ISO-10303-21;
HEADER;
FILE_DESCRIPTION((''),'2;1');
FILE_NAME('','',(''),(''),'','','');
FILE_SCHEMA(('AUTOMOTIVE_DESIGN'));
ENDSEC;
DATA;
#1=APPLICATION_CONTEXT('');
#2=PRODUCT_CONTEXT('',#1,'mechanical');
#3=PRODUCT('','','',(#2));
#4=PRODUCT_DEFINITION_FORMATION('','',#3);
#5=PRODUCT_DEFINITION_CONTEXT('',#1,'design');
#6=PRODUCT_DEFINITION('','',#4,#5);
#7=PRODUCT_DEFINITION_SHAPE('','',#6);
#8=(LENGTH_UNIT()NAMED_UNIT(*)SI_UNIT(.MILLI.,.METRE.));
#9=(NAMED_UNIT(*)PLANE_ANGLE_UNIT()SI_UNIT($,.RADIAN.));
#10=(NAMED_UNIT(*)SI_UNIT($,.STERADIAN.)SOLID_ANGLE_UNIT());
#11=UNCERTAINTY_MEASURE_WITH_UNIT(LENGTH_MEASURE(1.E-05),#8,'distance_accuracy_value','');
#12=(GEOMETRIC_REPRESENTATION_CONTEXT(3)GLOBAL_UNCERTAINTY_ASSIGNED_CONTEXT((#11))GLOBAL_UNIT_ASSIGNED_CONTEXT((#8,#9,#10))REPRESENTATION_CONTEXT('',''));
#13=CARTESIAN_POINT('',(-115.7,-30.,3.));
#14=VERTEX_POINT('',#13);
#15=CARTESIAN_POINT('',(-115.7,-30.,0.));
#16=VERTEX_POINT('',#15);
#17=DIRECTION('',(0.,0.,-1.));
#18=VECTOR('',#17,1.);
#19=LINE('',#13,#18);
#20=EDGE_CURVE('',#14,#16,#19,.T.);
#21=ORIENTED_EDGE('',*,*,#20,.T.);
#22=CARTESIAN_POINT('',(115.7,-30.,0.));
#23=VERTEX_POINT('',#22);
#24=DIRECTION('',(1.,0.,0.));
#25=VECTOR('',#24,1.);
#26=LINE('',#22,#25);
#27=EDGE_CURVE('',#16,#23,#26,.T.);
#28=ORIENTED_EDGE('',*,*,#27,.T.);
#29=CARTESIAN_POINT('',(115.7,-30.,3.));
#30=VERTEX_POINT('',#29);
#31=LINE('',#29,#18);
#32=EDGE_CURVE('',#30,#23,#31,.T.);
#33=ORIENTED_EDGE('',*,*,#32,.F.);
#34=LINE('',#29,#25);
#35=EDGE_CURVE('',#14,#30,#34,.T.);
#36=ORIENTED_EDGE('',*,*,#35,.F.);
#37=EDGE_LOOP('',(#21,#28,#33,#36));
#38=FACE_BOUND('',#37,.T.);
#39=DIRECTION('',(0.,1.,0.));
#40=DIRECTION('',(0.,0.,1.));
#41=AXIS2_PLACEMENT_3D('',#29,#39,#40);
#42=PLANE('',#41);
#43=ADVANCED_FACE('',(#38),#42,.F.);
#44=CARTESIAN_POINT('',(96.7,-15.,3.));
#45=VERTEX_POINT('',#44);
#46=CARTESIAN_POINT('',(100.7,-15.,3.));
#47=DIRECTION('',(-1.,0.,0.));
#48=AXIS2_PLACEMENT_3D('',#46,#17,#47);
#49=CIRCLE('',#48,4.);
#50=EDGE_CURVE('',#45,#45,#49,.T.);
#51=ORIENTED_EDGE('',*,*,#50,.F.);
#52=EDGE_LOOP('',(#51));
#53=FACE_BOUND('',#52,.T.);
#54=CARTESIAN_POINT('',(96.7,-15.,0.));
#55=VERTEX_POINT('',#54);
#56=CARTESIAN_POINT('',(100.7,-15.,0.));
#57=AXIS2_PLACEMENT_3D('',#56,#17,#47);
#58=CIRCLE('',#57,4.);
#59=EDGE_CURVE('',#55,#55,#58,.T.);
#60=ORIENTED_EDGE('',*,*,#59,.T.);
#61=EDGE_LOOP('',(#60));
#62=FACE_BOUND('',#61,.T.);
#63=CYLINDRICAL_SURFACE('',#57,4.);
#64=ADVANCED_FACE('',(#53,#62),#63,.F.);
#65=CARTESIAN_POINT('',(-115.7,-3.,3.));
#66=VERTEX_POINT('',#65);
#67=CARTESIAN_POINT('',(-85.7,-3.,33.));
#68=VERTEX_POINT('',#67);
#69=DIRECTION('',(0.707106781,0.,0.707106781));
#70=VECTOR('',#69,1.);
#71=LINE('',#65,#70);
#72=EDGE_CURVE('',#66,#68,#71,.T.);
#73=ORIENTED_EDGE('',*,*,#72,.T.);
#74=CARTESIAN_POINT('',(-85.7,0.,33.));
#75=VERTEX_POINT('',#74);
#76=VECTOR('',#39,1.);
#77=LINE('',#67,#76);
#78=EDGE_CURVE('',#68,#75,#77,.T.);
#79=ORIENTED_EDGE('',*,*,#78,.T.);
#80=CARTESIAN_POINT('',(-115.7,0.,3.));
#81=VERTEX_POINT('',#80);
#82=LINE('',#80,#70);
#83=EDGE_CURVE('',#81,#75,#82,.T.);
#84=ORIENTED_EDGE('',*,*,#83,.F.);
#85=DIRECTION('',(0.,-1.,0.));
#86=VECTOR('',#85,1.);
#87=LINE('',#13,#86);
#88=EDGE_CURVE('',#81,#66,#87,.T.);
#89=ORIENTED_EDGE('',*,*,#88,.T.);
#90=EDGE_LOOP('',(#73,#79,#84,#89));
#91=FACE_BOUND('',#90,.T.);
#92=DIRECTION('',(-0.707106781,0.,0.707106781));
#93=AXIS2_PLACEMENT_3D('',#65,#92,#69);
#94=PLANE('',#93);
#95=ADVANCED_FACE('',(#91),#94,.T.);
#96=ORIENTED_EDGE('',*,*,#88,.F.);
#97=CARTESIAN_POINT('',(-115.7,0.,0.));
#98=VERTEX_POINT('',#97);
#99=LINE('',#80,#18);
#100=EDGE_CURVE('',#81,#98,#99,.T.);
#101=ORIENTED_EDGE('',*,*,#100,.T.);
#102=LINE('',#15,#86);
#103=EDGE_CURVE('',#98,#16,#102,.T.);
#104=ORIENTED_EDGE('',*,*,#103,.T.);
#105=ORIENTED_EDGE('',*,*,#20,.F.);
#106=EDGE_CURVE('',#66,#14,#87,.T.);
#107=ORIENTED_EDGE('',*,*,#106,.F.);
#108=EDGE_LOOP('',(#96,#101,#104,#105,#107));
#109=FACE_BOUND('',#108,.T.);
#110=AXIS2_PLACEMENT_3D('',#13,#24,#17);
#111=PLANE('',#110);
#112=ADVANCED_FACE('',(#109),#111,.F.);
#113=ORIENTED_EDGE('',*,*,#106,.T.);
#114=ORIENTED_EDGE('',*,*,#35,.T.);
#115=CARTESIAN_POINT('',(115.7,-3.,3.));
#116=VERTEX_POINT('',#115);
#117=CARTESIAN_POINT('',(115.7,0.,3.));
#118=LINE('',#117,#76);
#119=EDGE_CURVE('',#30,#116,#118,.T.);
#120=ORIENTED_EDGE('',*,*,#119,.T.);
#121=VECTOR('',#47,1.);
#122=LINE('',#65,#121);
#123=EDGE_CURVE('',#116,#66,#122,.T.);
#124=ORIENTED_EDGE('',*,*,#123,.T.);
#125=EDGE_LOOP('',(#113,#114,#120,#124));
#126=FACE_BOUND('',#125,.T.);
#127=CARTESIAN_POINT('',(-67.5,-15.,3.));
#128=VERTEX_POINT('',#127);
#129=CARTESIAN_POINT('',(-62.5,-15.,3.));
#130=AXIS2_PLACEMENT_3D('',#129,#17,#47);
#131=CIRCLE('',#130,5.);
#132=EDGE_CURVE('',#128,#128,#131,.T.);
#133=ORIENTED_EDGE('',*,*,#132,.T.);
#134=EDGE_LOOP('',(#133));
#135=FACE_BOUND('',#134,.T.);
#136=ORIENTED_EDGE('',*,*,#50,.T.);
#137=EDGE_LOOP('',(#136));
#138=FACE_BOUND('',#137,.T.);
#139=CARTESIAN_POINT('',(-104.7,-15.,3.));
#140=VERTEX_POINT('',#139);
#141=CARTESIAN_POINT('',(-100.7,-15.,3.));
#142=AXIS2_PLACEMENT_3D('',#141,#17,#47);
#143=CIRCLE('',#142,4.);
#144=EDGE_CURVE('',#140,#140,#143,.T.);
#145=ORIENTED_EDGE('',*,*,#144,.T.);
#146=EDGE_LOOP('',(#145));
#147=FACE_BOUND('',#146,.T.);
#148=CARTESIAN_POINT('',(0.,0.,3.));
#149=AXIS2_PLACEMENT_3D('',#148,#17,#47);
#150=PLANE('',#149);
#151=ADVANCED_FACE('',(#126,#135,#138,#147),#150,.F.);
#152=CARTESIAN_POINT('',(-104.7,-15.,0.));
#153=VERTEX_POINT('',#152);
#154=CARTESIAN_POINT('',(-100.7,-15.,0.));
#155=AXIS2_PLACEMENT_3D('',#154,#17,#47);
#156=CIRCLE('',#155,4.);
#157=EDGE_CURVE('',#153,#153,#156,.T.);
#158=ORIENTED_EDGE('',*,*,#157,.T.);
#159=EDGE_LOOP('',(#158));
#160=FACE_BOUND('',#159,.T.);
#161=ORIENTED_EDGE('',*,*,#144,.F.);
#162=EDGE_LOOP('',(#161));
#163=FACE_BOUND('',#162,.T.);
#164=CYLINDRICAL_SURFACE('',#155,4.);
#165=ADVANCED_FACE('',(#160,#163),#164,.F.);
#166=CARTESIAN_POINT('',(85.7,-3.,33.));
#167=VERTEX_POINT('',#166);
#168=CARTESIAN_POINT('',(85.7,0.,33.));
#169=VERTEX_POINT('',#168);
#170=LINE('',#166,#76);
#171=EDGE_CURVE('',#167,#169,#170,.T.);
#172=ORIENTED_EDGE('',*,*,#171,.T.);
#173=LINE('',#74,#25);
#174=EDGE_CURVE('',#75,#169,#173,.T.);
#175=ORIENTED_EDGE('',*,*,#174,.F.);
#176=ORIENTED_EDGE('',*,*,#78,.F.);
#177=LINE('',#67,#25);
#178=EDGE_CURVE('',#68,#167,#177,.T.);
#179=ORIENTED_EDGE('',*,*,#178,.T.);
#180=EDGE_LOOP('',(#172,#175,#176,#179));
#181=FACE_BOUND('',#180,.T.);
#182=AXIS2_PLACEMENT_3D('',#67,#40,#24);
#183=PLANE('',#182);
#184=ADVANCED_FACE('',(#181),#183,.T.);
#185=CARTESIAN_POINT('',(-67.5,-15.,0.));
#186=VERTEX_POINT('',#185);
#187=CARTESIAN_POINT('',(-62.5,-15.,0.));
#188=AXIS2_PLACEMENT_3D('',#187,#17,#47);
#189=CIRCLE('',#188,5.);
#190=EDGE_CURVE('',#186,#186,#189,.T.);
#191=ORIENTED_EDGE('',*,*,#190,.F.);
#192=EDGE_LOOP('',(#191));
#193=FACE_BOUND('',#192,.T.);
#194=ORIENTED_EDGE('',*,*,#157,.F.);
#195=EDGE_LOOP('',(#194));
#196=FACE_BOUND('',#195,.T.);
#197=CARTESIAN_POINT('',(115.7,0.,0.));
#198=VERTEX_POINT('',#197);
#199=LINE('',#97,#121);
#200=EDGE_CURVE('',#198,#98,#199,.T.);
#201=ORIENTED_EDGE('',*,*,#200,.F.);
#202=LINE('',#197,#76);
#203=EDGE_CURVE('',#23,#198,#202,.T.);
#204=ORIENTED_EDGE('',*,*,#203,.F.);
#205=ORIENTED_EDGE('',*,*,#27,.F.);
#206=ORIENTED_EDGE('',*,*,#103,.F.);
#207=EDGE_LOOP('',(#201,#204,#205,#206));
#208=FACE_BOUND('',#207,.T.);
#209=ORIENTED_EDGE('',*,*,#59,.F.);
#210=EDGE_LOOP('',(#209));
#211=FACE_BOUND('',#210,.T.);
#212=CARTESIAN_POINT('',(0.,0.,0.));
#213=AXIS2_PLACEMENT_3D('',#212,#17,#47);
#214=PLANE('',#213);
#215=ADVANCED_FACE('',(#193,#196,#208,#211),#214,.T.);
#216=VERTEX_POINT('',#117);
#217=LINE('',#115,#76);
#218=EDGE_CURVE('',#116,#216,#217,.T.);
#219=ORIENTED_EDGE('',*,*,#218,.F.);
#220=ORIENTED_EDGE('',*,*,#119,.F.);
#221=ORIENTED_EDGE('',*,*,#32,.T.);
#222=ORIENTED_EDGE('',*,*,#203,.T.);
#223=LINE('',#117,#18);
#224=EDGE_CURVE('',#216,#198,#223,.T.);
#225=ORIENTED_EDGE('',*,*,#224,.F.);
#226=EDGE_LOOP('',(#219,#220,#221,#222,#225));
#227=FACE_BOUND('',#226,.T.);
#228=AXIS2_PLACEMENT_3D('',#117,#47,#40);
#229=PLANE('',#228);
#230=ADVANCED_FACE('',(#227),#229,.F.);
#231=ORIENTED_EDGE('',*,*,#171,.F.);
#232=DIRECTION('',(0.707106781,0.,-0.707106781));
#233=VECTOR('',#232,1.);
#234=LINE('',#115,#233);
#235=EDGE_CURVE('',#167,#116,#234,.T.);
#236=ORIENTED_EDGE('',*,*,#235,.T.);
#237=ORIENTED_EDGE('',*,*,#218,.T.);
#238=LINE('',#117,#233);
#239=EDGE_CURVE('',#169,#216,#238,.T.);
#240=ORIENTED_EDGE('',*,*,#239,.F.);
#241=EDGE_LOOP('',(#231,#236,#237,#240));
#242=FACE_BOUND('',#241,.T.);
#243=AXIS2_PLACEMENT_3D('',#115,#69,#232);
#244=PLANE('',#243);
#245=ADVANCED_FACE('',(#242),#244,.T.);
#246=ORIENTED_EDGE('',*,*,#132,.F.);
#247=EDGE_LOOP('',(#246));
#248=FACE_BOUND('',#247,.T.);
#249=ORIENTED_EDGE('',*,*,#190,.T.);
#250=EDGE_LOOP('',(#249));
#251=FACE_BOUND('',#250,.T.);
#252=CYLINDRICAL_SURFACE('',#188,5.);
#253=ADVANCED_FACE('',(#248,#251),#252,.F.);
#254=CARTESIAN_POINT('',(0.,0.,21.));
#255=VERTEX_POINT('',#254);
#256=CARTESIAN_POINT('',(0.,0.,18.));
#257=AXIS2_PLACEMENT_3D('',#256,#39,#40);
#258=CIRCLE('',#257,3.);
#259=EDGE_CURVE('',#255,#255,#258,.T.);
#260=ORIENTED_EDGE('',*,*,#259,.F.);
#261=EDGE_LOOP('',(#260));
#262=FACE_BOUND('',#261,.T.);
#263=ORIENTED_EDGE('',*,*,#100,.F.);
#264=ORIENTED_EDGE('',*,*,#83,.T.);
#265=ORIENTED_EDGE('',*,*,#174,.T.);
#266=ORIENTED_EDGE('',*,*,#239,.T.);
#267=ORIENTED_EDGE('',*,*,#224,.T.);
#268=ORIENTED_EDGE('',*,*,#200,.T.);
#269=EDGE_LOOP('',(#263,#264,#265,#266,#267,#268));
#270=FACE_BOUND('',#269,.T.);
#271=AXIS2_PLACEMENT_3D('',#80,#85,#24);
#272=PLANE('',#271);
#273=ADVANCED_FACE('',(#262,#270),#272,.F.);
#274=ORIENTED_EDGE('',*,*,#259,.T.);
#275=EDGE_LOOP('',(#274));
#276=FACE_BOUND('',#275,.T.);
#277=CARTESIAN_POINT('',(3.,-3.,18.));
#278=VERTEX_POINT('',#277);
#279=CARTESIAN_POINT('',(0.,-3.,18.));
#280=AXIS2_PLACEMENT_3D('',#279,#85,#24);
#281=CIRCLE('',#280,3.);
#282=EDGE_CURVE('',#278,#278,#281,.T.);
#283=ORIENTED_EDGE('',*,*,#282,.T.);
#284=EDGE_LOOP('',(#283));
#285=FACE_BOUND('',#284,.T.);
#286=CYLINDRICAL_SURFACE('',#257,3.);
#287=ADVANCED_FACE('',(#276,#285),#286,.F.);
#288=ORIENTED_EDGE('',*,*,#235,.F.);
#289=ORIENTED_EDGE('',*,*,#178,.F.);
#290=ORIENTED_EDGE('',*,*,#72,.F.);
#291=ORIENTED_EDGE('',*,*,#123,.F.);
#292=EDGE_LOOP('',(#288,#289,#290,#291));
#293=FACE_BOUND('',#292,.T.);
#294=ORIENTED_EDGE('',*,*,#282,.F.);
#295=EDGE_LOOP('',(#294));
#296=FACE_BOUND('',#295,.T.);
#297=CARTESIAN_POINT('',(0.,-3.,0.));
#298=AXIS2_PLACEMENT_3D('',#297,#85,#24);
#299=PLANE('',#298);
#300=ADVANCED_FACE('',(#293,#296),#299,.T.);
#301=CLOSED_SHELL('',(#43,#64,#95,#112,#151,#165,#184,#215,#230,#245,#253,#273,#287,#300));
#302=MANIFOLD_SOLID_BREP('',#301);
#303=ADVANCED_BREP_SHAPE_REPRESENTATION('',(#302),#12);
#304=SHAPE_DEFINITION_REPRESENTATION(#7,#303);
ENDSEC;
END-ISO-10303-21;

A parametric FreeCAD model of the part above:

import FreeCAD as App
import Part
import Sketcher
from FreeCAD import Vector

doc = App.newDocument("Part")
params = doc.addObject("Spreadsheet::Sheet", "Params")
for row, (alias, value) in enumerate([
    ("sketch1_height", "30 mm"),
    ("sketch1_width", "231.4 mm"),
    ("pad1_length", "3 mm"),
    ("sketch2_width", "231.4 mm"),
    ("sketch2_width2", "171.4 mm"),
    ("pad2_length", "3 mm"),
    ("sketch3_diameter", "8 mm"),
    ("hole_diameter", "8 mm"),
    ("sketch4_diameter", "10 mm"),
    ("hole2_diameter", "10 mm"),
    ("sketch5_diameter", "6 mm"),
    ("hole3_diameter", "6 mm"),
], start=1):
    params.set(f"A{row}", alias)
    params.set(f"B{row}", "=" + value)
    params.setAlias(f"B{row}", alias)

body = doc.addObject("PartDesign::Body", "Body")

# Sketch on XY plane
sketch1 = doc.addObject("Sketcher::SketchObject", "Sketch")
body.addObject(sketch1)
sketch1.AttachmentSupport = (doc.XY_Plane, [""])
sketch1.MapMode = "FlatFace"
sketch1.addGeometry([
    Part.LineSegment(Vector(-116, 0, 0), Vector(-116, -30, 0)),
    Part.LineSegment(Vector(-116, -30, 0), Vector(116, -30, 0)),
    Part.LineSegment(Vector(116, -30, 0), Vector(116, 0, 0)),
    Part.LineSegment(Vector(116, 0, 0), Vector(-116, 0, 0)),
], False)
sketch1.addConstraint([
    Sketcher.Constraint("Coincident", 0, 2, 1, 1),
    Sketcher.Constraint("Coincident", 1, 2, 2, 1),
    Sketcher.Constraint("Coincident", 2, 2, 3, 1),
    Sketcher.Constraint("Coincident", 3, 2, 0, 1),
    Sketcher.Constraint("Vertical", 0),
    Sketcher.Constraint("Horizontal", 1),
    Sketcher.Constraint("Vertical", 2),
    Sketcher.Constraint("Horizontal", 3),
    Sketcher.Constraint("Symmetric", 2, 2, 3, 2, -1, 1),
    Sketcher.Constraint("DistanceY", 0, 2, 0, 1, 30.0),
    Sketcher.Constraint("DistanceX", 1, 1, 1, 2, 231.4),
])
sketch1.setExpression("Constraints[9]", "Params.sketch1_height")
sketch1.setExpression("Constraints[10]", "Params.sketch1_width")
pad1 = doc.addObject("PartDesign::Pad", "Pad")
body.addObject(pad1)
pad1.Profile = sketch1
pad1.setExpression("Length", "Params.pad1_length")

# Sketch on XZ plane
sketch2 = doc.addObject("Sketcher::SketchObject", "Sketch001")
body.addObject(sketch2)
sketch2.AttachmentSupport = (doc.XZ_Plane, [""])
sketch2.MapMode = "FlatFace"
sketch2.addGeometry([
    Part.LineSegment(Vector(116, 3, 0), Vector(-116, 3, 0)),
    Part.LineSegment(Vector(-116, 3, 0), Vector(-86, 33, 0)),
    Part.LineSegment(Vector(-86, 33, 0), Vector(86, 33, 0)),
    Part.LineSegment(Vector(86, 33, 0), Vector(116, 3, 0)),
], False)
sketch2.addConstraint([
    Sketcher.Constraint("Coincident", 0, 2, 1, 1),
    Sketcher.Constraint("Coincident", 1, 2, 2, 1),
    Sketcher.Constraint("Coincident", 2, 2, 3, 1),
    Sketcher.Constraint("Coincident", 3, 2, 0, 1),
    Sketcher.Constraint("Horizontal", 0),
    Sketcher.Constraint("Horizontal", 2),
    Sketcher.Constraint("Perpendicular", 1, 3),
    Sketcher.Constraint("Equal", 1, 3),
    Sketcher.Constraint("DistanceX", 0, 2, 0, 1, 231.4),
    Sketcher.Constraint("DistanceX", 2, 1, 2, 2, 171.4),
    Sketcher.Constraint("DistanceY", -1, 1, 0, 2, 3.0),
    Sketcher.Constraint("DistanceX", 0, 2, -1, 1, 115.7),
])
sketch2.setExpression("Constraints[8]", "Params.sketch2_width")
sketch2.setExpression("Constraints[9]", "Params.sketch2_width2")
pad2 = doc.addObject("PartDesign::Pad", "Pad001")
body.addObject(pad2)
pad2.Profile = sketch2
pad2.setExpression("Length", "Params.pad2_length")

# Sketch on XY plane
sketch3 = doc.addObject("Sketcher::SketchObject", "Sketch002")
body.addObject(sketch3)
sketch3.AttachmentSupport = (doc.XY_Plane, [""])
sketch3.MapMode = "FlatFace"
sketch3.addGeometry([
    Part.Circle(Vector(100.7, -15, 0), Vector(0, 0, 1), 4),
    Part.Circle(Vector(-100.7, -15, 0), Vector(0, 0, 1), 4),
], False)
sketch3.addConstraint([
    Sketcher.Constraint("Equal", 0, 1),
    Sketcher.Constraint("Symmetric", 0, 3, 1, 3, -2),
    Sketcher.Constraint("Diameter", 0, 8.0),
    Sketcher.Constraint("DistanceY", 0, 3, -1, 1, 15.0),
    Sketcher.Constraint("DistanceX", -1, 1, 0, 3, 100.7),
])
sketch3.setExpression("Constraints[2]", "Params.sketch3_diameter")
doc.recompute()
hole = doc.addObject("PartDesign::Hole", "Hole")
body.addObject(hole)
hole.Profile = sketch3
hole.ThreadType = "None"
hole.setExpression("Diameter", "Params.hole_diameter")
hole.DepthType = "ThroughAll"
hole.Reversed = True

# Sketch on XY plane
sketch4 = doc.addObject("Sketcher::SketchObject", "Sketch003")
body.addObject(sketch4)
sketch4.AttachmentSupport = (doc.XY_Plane, [""])
sketch4.MapMode = "FlatFace"
sketch4.addGeometry(Part.Circle(Vector(-62, -15, 0), Vector(0, 0, 1), 5), False)
sketch4.addConstraint([
    Sketcher.Constraint("Diameter", 0, 10.0),
    Sketcher.Constraint("DistanceY", 0, 3, -1, 1, 15.0),
    Sketcher.Constraint("DistanceX", 0, 3, -1, 1, 62.5),
])
sketch4.setExpression("Constraints[0]", "Params.sketch4_diameter")
doc.recompute()
hole2 = doc.addObject("PartDesign::Hole", "Hole001")
body.addObject(hole2)
hole2.Profile = sketch4
hole2.ThreadType = "None"
hole2.setExpression("Diameter", "Params.hole2_diameter")
hole2.DepthType = "ThroughAll"
hole2.Reversed = True

# Sketch on XZ plane
sketch5 = doc.addObject("Sketcher::SketchObject", "Sketch004")
body.addObject(sketch5)
sketch5.AttachmentSupport = (doc.XZ_Plane, [""])
sketch5.MapMode = "FlatFace"
sketch5.addGeometry(Part.Circle(Vector(0, 18, 0), Vector(0, 0, 1), 3), False)
sketch5.addConstraint([
    Sketcher.Constraint("PointOnObject", 0, 3, -2),
    Sketcher.Constraint("Diameter", 0, 6.0),
    Sketcher.Constraint("DistanceY", -1, 1, 0, 3, 18.0),
])
sketch5.setExpression("Constraints[1]", "Params.sketch5_diameter")
doc.recompute()
hole3 = doc.addObject("PartDesign::Hole", "Hole002")
body.addObject(hole3)
hole3.Profile = sketch5
hole3.ThreadType = "None"
hole3.setExpression("Diameter", "Params.hole3_diameter")
hole3.DepthType = "ThroughAll"
hole3.Reversed = True

doc.recompute()
